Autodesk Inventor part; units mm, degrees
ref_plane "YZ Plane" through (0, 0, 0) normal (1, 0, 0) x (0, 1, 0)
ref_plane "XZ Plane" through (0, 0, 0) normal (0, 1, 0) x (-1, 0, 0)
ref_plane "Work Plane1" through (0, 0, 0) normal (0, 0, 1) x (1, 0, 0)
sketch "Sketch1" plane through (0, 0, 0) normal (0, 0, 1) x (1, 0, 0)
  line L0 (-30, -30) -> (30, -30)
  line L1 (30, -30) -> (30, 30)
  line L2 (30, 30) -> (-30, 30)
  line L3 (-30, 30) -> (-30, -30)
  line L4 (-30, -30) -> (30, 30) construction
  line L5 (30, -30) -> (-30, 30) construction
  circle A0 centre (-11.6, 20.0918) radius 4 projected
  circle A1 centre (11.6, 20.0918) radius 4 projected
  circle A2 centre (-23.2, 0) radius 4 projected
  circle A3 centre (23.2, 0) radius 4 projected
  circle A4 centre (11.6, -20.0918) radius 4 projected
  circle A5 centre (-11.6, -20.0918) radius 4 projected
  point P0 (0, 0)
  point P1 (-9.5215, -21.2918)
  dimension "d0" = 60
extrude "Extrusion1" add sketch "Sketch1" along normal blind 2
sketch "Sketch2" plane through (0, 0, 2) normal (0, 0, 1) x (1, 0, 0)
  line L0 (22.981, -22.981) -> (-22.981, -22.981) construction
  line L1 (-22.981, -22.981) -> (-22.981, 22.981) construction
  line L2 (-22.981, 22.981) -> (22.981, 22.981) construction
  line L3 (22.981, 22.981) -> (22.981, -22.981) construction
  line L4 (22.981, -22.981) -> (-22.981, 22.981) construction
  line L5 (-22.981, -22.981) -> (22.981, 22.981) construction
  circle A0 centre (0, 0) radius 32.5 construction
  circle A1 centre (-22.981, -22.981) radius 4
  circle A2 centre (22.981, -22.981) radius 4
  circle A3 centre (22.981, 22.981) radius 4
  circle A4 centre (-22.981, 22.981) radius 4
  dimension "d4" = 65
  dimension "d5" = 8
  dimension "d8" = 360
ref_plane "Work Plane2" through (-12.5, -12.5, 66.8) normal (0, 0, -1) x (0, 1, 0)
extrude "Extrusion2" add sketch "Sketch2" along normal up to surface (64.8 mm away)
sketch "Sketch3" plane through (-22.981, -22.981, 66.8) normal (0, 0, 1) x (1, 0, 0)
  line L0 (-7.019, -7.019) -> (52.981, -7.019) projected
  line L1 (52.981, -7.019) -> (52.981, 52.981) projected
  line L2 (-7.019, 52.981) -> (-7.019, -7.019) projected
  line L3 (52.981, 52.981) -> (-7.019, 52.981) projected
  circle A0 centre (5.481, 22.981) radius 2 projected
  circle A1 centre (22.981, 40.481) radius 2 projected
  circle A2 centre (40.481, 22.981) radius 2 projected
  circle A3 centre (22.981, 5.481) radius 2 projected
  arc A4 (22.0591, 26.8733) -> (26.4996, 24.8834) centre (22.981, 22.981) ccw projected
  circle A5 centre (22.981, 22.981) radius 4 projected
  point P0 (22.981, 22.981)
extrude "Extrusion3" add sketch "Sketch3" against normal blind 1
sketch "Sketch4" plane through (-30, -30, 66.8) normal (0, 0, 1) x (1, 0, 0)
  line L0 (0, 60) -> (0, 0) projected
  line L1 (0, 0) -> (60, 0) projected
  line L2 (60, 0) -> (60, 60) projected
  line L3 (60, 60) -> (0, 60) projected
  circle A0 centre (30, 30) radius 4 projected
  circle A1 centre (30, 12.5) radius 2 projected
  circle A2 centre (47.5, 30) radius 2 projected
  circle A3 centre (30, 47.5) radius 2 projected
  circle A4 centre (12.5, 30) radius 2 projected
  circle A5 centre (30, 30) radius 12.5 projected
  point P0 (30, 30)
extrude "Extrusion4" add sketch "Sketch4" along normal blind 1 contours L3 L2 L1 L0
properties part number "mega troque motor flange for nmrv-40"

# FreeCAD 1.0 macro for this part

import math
import FreeCAD as App
import Part
import Sketcher
from FreeCAD import Vector
Q = App.Units.Quantity


def add_polygon(sketch, points):
    """Adds a closed chain of lines whose ends are joined by coincident constraints."""
    first, n = sketch.GeometryCount, len(points)
    for a, b in zip(points, points[1:] + points[:1]):
        sketch.addGeometry(Part.LineSegment(App.Vector(*a, 0), App.Vector(*b, 0)), False)
    for i in range(n):
        sketch.addConstraint(Sketcher.Constraint("Coincident", first + i, 2, first + (i + 1) % n, 1))

doc = App.newDocument("Part")
params = doc.addObject("Spreadsheet::Sheet", "Params")
for row, (alias, value) in enumerate([
    ("sketch1_width", "60 mm"),
    ("sketch1_diameter", "8 mm"),
    ("pad1_length", "2 mm"),
    ("sketch2_diameter", "8 mm"),
    ("pad2_length", "64.8 mm"),
    ("sketch3_diameter", "4 mm"),
    ("sketch3_radius", "4 mm"),
    ("sketch3_width", "60 mm"),
    ("pad3_length", "1 mm"),
    ("sketch4_diameter", "4 mm"),
    ("sketch4_diameter2", "25 mm"),
    ("sketch4_width", "60 mm"),
    ("pad4_length", "1 mm"),
], start=1):
    params.set(f"A{row}", alias)
    params.set(f"B{row}", "=" + value)
    params.setAlias(f"B{row}", alias)

body = doc.addObject("PartDesign::Body", "Body")

# Sketch on XY plane
sketch1 = doc.addObject("Sketcher::SketchObject", "Sketch")
body.addObject(sketch1)
sketch1.AttachmentSupport = (doc.XY_Plane, [""])
sketch1.MapMode = "FlatFace"
add_polygon(sketch1, [(-30, 30), (-30, -30), (30, -30), (30, 30)])  # lines 0-3
sketch1.addGeometry(Part.Circle(Vector(-11.6, -20.1, 0), Vector(0, 0, 1), 4), False)  # 4
sketch1.addGeometry(Part.Circle(Vector(11.6, -20.1, 0), Vector(0, 0, 1), 4), False)  # 5
sketch1.addGeometry(Part.Circle(Vector(-23.2, 0, 0), Vector(0, 0, 1), 4), False)  # 6
sketch1.addGeometry(Part.Circle(Vector(-11.6, 20.1, 0), Vector(0, 0, 1), 4), False)  # 7
sketch1.addGeometry(Part.Circle(Vector(23.2, 0, 0), Vector(0, 0, 1), 4), False)  # 8
sketch1.addGeometry(Part.Circle(Vector(11.6, 20.1, 0), Vector(0, 0, 1), 4), False)  # 9
sketch1.addConstraint([
    Sketcher.Constraint("Vertical", 0),
    Sketcher.Constraint("Horizontal", 1),
    Sketcher.Constraint("Vertical", 2),
    Sketcher.Constraint("Horizontal", 3),
    Sketcher.Constraint("Equal", 4, 5),
    Sketcher.Constraint("Equal", 5, 6),
    Sketcher.Constraint("Equal", 6, 7),
    Sketcher.Constraint("Equal", 7, 8),
    Sketcher.Constraint("Equal", 8, 9),
    Sketcher.Constraint("Symmetric", 5, 3, 7, 3, -1, 1),
    Sketcher.Constraint("Symmetric", 6, 3, 8, 3, -1, 1),
    Sketcher.Constraint("Symmetric", 4, 3, 9, 3, -1, 1),
    Sketcher.Constraint("Symmetric", 0, 2, 2, 2, -1, 1),
    Sketcher.Constraint("Symmetric", 4, 3, 5, 3, -2),
    Sketcher.Constraint("PointOnObject", 6, 3, -1),
    Sketcher.Constraint("Equal", 3, 0),
    Sketcher.Constraint("DistanceX", 1, 1, 1, 2, Q("60 mm")),
    Sketcher.Constraint("Diameter", 4, Q("8 mm")),
    Sketcher.Constraint("DistanceX", 4, 3, -1, 1, Q("11.6 mm")),
    Sketcher.Constraint("DistanceX", 6, 3, -1, 1, Q("23.2 mm")),
    Sketcher.Constraint("DistanceY", 4, 3, -1, 1, Q("20.0918 mm")),
])
sketch1.setExpression("Constraints[20]", "Params.sketch1_width")
sketch1.setExpression("Constraints[21]", "Params.sketch1_diameter")
pad1 = doc.addObject("PartDesign::Pad", "Pad")
body.addObject(pad1)
pad1.Profile = sketch1
pad1.setExpression("Length", "Params.pad1_length")

# Sketch on XY plane
sketch2 = doc.addObject("Sketcher::SketchObject", "Sketch001")
body.addObject(sketch2)
sketch2.AttachmentSupport = (doc.XY_Plane, [""])
sketch2.MapMode = "FlatFace"
sketch2.AttachmentOffset = App.Placement(Vector(0, 0, 2), App.Rotation())
sketch2.addGeometry([
    Part.Circle(Vector(-23, -23, 0), Vector(0, 0, 1), 4),
    Part.Circle(Vector(23, -23, 0), Vector(0, 0, 1), 4),
    Part.Circle(Vector(23, 23, 0), Vector(0, 0, 1), 4),
    Part.Circle(Vector(-23, 23, 0), Vector(0, 0, 1), 4),
], False)
sketch2.addConstraint([
    Sketcher.Constraint("Equal", 0, 1),
    Sketcher.Constraint("Equal", 1, 2),
    Sketcher.Constraint("Equal", 2, 3),
    Sketcher.Constraint("Symmetric", 0, 3, 2, 3, -1, 1),
    Sketcher.Constraint("Symmetric", 1, 3, 3, 3, -1, 1),
    Sketcher.Constraint("Symmetric", 0, 3, 1, 3, -2),
    Sketcher.Constraint("Diameter", 0, Q("8 mm")),
    Sketcher.Constraint("DistanceX", 0, 3, -1, 1, Q("22.981 mm")),
    Sketcher.Constraint("DistanceY", 0, 3, -1, 1, Q("22.981 mm")),
])
sketch2.setExpression("Constraints[6]", "Params.sketch2_diameter")
pad2 = doc.addObject("PartDesign::Pad", "Pad001")
body.addObject(pad2)
pad2.Profile = sketch2
pad2.setExpression("Length", "Params.pad2_length")

# Sketch on XY plane
sketch3 = doc.addObject("Sketcher::SketchObject", "Sketch002")
body.addObject(sketch3)
sketch3.AttachmentSupport = (doc.XY_Plane, [""])
sketch3.MapMode = "FlatFace"
sketch3.AttachmentOffset = App.Placement(Vector(0, 0, 66.8), App.Rotation())
add_polygon(sketch3, [(-30, 30), (-30, -30), (30, -30), (30, 30)])  # lines 0-3
sketch3.addGeometry(Part.Circle(Vector(0, -17.5, 0), Vector(0, 0, 1), 2), False)  # 4
sketch3.addGeometry(Part.Circle(Vector(-17.5, 0, 0), Vector(0, 0, 1), 2), False)  # 5
sketch3.addGeometry(Part.ArcOfCircle(Part.Circle(Vector(0, 0, 0), Vector(0, 0, 1), 4), math.radians(103), math.radians(388)), False)  # 6
sketch3.addGeometry(Part.ArcOfCircle(Part.Circle(Vector(0, 0, 0), Vector(0, 0, 1), 4), math.radians(28), math.radians(103)), False)  # 7
sketch3.addGeometry(Part.Circle(Vector(17.5, 0, 0), Vector(0, 0, 1), 2), False)  # 8
sketch3.addGeometry(Part.Circle(Vector(0, 17.5, 0), Vector(0, 0, 1), 2), False)  # 9
sketch3.addConstraint([
    Sketcher.Constraint("Tangent", 6, 1, 7, 2),
    Sketcher.Constraint("Coincident", 7, 1, 6, 2),
    Sketcher.Constraint("Vertical", 0),
    Sketcher.Constraint("Horizontal", 1),
    Sketcher.Constraint("Vertical", 2),
    Sketcher.Constraint("Horizontal", 3),
    Sketcher.Constraint("Coincident", 6, 3, -1, 1),
    Sketcher.Constraint("Equal", 4, 5),
    Sketcher.Constraint("Equal", 5, 8),
    Sketcher.Constraint("Equal", 8, 9),
    Sketcher.Constraint("Symmetric", 5, 3, 8, 3, -1, 1),
    Sketcher.Constraint("Symmetric", 4, 3, 9, 3, -1, 1),
    Sketcher.Constraint("Symmetric", 0, 2, 2, 2, -1, 1),
    Sketcher.Constraint("PointOnObject", 4, 3, -2),
    Sketcher.Constraint("PointOnObject", 5, 3, -1),
    Sketcher.Constraint("Equal", 3, 0),
    Sketcher.Constraint("Diameter", 4, Q("4 mm")),
    Sketcher.Constraint("Radius", 6, Q("4 mm")),
    Sketcher.Constraint("DistanceX", 1, 1, 1, 2, Q("60 mm")),
    Sketcher.Constraint("DistanceX", 5, 3, 8, 3, Q("35 mm")),
    Sketcher.Constraint("DistanceY", 4, 3, 9, 3, Q("35 mm")),
    Sketcher.Constraint("DistanceY", 7, 1, 6, 1, Q("1.99 mm")),
    Sketcher.Constraint("DistanceX", 6, 1, -1, 1, Q("0.922 mm")),
])
sketch3.setExpression("Constraints[20]", "Params.sketch3_diameter")
sketch3.setExpression("Constraints[21]", "Params.sketch3_radius")
sketch3.setExpression("Constraints[22]", "Params.sketch3_width")
pad3 = doc.addObject("PartDesign::Pad", "Pad002")
body.addObject(pad3)
pad3.Profile = sketch3
pad3.setExpression("Length", "Params.pad3_length")
pad3.Reversed = True

# Sketch on XY plane
sketch4 = doc.addObject("Sketcher::SketchObject", "Sketch003")
body.addObject(sketch4)
sketch4.AttachmentSupport = (doc.XY_Plane, [""])
sketch4.MapMode = "FlatFace"
sketch4.AttachmentOffset = App.Placement(Vector(0, 0, 66.8), App.Rotation())
add_polygon(sketch4, [(30, 30), (-30, 30), (-30, -30), (30, -30)])  # lines 0-3
sketch4.addGeometry(Part.Circle(Vector(0, -17.5, 0), Vector(0, 0, 1), 2), False)  # 4
sketch4.addGeometry(Part.Circle(Vector(-17.5, 0, 0), Vector(0, 0, 1), 2), False)  # 5
sketch4.addGeometry(Part.Circle(Vector(0, 0, 0), Vector(0, 0, 1), 12.5), False)  # 6
sketch4.addGeometry(Part.Circle(Vector(17.5, 0, 0), Vector(0, 0, 1), 2), False)  # 7
sketch4.addGeometry(Part.Circle(Vector(0, 17.5, 0), Vector(0, 0, 1), 2), False)  # 8
sketch4.addConstraint([
    Sketcher.Constraint("Horizontal", 0),
    Sketcher.Constraint("Vertical", 1),
    Sketcher.Constraint("Horizontal", 2),
    Sketcher.Constraint("Vertical", 3),
    Sketcher.Constraint("Coincident", 6, 3, -1, 1),
    Sketcher.Constraint("Equal", 4, 5),
    Sketcher.Constraint("Equal", 5, 7),
    Sketcher.Constraint("Equal", 7, 8),
    Sketcher.Constraint("Symmetric", 5, 3, 7, 3, -1, 1),
    Sketcher.Constraint("Symmetric", 4, 3, 8, 3, -1, 1),
    Sketcher.Constraint("Symmetric", 0, 2, 2, 2, -1, 1),
    Sketcher.Constraint("PointOnObject", 4, 3, -2),
    Sketcher.Constraint("PointOnObject", 5, 3, -1),
    Sketcher.Constraint("Equal", 2, 1),
    Sketcher.Constraint("Diameter", 4, Q("4 mm")),
    Sketcher.Constraint("Diameter", 6, Q("25 mm")),
    Sketcher.Constraint("DistanceX", 0, 2, 0, 1, Q("60 mm")),
    Sketcher.Constraint("DistanceX", 5, 3, 7, 3, Q("35 mm")),
    Sketcher.Constraint("DistanceY", 4, 3, 8, 3, Q("35 mm")),
])
sketch4.setExpression("Constraints[18]", "Params.sketch4_diameter")
sketch4.setExpression("Constraints[19]", "Params.sketch4_diameter2")
sketch4.setExpression("Constraints[20]", "Params.sketch4_width")
pad4 = doc.addObject("PartDesign::Pad", "Pad003")
body.addObject(pad4)
pad4.Profile = sketch4
pad4.setExpression("Length", "Params.pad4_length")

doc.recompute()
